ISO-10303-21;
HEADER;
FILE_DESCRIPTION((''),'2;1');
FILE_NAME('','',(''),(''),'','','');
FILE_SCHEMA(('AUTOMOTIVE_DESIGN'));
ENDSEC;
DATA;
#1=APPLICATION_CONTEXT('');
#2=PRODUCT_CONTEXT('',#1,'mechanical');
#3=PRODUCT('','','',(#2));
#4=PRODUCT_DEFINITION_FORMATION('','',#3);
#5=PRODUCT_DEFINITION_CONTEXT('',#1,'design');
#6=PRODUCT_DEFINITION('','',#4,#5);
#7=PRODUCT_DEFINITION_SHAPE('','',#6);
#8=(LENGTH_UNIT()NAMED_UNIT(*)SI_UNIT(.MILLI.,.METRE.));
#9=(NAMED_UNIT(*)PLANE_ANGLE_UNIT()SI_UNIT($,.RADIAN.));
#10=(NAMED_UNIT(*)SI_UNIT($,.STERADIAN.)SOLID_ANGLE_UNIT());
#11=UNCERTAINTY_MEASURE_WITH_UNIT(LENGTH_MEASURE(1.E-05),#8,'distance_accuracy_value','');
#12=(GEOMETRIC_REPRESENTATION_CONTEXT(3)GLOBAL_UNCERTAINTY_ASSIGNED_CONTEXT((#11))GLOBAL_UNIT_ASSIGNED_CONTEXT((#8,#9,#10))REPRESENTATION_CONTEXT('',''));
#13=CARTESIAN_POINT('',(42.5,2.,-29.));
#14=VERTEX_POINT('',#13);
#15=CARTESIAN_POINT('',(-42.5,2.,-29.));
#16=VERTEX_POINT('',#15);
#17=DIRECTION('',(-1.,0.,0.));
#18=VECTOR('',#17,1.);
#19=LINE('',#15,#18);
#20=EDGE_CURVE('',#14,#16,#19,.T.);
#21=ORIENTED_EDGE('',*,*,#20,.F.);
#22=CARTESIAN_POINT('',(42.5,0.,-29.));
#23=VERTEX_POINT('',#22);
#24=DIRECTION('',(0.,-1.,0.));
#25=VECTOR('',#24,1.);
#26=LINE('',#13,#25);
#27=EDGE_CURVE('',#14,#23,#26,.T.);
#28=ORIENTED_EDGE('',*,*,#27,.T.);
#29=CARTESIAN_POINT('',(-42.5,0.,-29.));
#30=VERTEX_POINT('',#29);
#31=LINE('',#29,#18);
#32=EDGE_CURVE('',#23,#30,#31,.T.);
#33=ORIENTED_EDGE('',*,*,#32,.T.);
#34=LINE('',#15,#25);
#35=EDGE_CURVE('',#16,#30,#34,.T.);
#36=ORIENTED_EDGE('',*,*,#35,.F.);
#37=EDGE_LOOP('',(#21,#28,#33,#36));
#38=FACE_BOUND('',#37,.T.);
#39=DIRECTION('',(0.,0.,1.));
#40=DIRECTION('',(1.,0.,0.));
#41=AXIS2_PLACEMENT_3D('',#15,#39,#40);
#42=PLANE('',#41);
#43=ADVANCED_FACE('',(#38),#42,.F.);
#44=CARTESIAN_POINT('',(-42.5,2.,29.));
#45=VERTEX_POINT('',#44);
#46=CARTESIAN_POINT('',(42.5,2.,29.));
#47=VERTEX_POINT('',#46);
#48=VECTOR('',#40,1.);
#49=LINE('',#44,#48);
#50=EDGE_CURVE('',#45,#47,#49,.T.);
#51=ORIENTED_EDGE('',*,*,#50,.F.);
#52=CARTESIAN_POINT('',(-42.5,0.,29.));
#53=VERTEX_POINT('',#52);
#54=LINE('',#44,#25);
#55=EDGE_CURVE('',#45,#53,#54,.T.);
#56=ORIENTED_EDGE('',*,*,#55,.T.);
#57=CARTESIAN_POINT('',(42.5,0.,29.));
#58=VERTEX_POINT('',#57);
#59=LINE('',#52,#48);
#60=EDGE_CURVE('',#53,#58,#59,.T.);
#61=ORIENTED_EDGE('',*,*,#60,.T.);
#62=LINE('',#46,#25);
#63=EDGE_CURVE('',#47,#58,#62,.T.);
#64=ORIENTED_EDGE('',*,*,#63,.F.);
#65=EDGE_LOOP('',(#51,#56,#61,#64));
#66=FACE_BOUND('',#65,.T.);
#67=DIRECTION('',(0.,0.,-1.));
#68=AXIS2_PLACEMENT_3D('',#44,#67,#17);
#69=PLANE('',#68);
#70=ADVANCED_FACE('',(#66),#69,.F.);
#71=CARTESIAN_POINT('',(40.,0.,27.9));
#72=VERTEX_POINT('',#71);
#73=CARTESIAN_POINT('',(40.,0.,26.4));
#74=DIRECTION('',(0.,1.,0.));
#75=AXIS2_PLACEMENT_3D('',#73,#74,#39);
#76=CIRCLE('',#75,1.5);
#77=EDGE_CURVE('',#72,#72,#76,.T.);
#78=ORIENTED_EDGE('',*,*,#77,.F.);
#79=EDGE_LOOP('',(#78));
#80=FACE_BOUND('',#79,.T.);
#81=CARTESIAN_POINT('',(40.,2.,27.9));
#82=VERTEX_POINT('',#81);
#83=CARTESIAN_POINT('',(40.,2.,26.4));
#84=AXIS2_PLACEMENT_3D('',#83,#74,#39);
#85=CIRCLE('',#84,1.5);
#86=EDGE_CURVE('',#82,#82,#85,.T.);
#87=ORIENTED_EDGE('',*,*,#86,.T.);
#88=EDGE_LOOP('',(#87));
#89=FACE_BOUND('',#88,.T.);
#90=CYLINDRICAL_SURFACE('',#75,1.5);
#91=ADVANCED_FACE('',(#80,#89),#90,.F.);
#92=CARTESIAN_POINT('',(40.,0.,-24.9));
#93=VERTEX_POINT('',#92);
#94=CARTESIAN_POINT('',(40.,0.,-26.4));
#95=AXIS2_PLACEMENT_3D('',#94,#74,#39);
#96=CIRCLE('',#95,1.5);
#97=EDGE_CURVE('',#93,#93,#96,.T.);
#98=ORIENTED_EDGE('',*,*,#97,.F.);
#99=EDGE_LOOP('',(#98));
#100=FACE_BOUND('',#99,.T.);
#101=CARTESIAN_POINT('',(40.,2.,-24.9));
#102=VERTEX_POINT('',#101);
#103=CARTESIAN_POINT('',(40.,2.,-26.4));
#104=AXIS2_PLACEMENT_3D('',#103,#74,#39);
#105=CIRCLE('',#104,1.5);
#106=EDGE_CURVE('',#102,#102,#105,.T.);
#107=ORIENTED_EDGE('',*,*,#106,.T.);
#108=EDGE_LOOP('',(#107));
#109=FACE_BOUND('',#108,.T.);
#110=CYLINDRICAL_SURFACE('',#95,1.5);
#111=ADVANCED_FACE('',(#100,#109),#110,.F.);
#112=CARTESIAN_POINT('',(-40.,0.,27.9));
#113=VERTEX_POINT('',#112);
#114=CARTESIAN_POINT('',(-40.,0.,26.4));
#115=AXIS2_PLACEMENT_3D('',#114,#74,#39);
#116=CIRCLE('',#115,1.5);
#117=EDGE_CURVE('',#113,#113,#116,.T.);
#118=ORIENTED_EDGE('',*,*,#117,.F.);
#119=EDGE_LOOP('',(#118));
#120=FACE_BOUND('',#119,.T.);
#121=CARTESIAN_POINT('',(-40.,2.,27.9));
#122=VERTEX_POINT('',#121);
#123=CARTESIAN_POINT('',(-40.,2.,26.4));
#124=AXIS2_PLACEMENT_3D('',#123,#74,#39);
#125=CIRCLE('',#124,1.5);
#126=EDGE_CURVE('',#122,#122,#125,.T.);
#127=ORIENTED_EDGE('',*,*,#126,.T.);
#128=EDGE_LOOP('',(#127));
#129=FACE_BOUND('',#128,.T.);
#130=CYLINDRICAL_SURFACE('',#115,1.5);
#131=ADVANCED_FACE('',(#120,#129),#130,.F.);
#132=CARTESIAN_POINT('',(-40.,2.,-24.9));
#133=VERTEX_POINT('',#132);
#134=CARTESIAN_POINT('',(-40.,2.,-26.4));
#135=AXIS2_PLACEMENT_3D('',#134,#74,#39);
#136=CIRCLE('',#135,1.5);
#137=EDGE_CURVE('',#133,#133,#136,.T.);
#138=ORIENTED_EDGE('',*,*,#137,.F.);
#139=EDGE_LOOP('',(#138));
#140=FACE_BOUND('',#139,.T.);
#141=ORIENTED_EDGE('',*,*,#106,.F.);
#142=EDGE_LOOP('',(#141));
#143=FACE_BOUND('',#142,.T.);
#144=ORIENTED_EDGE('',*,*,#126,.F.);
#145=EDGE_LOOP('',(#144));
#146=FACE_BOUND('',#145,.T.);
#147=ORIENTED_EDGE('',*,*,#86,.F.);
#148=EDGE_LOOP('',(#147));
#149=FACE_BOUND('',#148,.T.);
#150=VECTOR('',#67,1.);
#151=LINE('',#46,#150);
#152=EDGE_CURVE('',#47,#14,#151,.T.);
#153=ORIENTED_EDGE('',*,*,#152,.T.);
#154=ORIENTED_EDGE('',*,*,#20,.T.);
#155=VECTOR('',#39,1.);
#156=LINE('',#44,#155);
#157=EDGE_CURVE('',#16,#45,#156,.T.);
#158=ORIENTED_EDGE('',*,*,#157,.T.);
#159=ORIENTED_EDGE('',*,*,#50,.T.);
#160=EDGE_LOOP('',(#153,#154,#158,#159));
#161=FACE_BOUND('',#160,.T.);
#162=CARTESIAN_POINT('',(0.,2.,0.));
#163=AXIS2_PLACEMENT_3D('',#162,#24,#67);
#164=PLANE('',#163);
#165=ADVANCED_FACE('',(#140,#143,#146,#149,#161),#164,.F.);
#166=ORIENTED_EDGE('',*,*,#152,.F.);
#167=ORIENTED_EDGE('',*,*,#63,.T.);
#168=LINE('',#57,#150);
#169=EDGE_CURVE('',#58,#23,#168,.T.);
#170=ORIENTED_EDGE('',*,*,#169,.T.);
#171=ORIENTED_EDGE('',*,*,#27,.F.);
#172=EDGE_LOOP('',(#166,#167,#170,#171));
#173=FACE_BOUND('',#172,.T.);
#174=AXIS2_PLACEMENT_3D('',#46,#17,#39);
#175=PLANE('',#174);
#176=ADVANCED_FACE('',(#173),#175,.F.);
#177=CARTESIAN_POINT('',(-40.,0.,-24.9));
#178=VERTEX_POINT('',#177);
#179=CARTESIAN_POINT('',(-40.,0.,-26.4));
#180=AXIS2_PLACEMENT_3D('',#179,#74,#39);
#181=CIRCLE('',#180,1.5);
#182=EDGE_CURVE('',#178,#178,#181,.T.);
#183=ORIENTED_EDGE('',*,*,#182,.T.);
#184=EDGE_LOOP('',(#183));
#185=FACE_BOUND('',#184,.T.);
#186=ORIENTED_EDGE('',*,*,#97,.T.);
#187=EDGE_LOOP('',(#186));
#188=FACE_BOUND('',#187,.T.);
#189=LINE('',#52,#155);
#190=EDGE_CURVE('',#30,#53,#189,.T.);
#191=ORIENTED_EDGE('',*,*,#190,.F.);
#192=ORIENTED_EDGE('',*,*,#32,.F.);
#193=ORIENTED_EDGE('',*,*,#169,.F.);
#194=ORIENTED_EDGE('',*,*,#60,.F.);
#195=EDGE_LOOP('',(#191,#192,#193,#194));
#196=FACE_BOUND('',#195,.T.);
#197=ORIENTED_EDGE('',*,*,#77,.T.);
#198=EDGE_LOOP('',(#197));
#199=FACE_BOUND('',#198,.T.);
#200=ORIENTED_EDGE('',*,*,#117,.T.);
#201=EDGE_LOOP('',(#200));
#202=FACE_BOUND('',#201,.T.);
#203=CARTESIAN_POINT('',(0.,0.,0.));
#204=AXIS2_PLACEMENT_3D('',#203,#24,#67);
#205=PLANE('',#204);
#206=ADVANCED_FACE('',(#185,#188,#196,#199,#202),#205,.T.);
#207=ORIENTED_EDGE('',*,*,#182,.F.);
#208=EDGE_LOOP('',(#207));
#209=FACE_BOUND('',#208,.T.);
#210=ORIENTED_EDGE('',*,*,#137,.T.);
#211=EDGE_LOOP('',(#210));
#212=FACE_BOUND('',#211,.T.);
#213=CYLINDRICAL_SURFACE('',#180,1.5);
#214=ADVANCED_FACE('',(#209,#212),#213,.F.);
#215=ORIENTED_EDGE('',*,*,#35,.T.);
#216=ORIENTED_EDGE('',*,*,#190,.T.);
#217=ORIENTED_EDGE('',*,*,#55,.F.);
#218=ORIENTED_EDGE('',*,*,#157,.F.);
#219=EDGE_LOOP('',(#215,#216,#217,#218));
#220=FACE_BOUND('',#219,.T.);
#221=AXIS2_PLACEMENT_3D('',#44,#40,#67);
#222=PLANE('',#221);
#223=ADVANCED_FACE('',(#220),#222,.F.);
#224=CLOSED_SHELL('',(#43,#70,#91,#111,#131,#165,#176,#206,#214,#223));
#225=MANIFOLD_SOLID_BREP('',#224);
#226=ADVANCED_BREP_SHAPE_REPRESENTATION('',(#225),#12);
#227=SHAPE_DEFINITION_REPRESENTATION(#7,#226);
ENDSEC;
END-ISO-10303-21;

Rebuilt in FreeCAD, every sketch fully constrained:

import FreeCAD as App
import Part
import Sketcher

V = App.Vector


def add_polygon(sketch, points):
    """Adds a closed chain of lines whose ends are joined by coincident constraints."""
    first, n = sketch.GeometryCount, len(points)
    for a, b in zip(points, points[1:] + points[:1]):
        sketch.addGeometry(Part.LineSegment(App.Vector(*a, 0), App.Vector(*b, 0)), False)
    for i in range(n):
        sketch.addConstraint(Sketcher.Constraint("Coincident", first + i, 2, first + (i + 1) % n, 1))

doc = App.newDocument("Part")
body = doc.addObject("PartDesign::Body", "Body")

# Sketch on XZ plane
sketch1 = body.newObject("Sketcher::SketchObject", "Sketch")
sketch1.AttachmentSupport = (doc.getObject("XZ_Plane"), [""])
sketch1.MapMode = "FlatFace"
add_polygon(sketch1, [(-42, -29), (-42, 29), (42, 29), (42, -29)])  # lines 0-3
sketch1.addConstraint([
    Sketcher.Constraint("Vertical", 0),
    Sketcher.Constraint("Horizontal", 1),
    Sketcher.Constraint("Vertical", 2),
    Sketcher.Constraint("Horizontal", 3),
    Sketcher.Constraint("Symmetric", 0, 2, 2, 2, -1, 1),
    Sketcher.Constraint("DistanceX", 1, 1, 1, 2, 85.0),
    Sketcher.Constraint("DistanceY", 0, 1, 0, 2, 58.0),
])
pad1 = body.newObject("PartDesign::Pad", "Pad")
pad1.Profile = sketch1
pad1.Length = 2
pad1.Reversed = True

# Sketch on XZ plane
sketch2 = body.newObject("Sketcher::SketchObject", "Sketch001")
sketch2.AttachmentSupport = (doc.getObject("XZ_Plane"), [""])
sketch2.MapMode = "FlatFace"
sketch2.AttachmentOffset = App.Placement(V(0, 0, -2), App.Rotation())
sketch2.addGeometry([
    Part.Circle(V(-40, -26.4, 0), V(0, 0, 1), 1.5),
    Part.Circle(V(40, -26.4, 0), V(0, 0, 1), 1.5),
    Part.Circle(V(40, 26.4, 0), V(0, 0, 1), 1.5),
    Part.Circle(V(-40, 26.4, 0), V(0, 0, 1), 1.5),
], False)
sketch2.addConstraint([
    Sketcher.Constraint("Equal", 0, 1),
    Sketcher.Constraint("Equal", 1, 2),
    Sketcher.Constraint("Equal", 2, 3),
    Sketcher.Constraint("Symmetric", 0, 3, 2, 3, -1, 1),
    Sketcher.Constraint("Symmetric", 1, 3, 3, 3, -1, 1),
    Sketcher.Constraint("Symmetric", 0, 3, 1, 3, -2),
    Sketcher.Constraint("Diameter", 0, 3.0),
    Sketcher.Constraint("DistanceX", 0, 3, -1, 1, 40.0),
    Sketcher.Constraint("DistanceY", 0, 3, -1, 1, 26.4),
])
pocket1 = body.newObject("PartDesign::Pocket", "Pocket")
pocket1.Profile = sketch2
pocket1.Length = 2
pocket1.Reversed = True

doc.recompute()
